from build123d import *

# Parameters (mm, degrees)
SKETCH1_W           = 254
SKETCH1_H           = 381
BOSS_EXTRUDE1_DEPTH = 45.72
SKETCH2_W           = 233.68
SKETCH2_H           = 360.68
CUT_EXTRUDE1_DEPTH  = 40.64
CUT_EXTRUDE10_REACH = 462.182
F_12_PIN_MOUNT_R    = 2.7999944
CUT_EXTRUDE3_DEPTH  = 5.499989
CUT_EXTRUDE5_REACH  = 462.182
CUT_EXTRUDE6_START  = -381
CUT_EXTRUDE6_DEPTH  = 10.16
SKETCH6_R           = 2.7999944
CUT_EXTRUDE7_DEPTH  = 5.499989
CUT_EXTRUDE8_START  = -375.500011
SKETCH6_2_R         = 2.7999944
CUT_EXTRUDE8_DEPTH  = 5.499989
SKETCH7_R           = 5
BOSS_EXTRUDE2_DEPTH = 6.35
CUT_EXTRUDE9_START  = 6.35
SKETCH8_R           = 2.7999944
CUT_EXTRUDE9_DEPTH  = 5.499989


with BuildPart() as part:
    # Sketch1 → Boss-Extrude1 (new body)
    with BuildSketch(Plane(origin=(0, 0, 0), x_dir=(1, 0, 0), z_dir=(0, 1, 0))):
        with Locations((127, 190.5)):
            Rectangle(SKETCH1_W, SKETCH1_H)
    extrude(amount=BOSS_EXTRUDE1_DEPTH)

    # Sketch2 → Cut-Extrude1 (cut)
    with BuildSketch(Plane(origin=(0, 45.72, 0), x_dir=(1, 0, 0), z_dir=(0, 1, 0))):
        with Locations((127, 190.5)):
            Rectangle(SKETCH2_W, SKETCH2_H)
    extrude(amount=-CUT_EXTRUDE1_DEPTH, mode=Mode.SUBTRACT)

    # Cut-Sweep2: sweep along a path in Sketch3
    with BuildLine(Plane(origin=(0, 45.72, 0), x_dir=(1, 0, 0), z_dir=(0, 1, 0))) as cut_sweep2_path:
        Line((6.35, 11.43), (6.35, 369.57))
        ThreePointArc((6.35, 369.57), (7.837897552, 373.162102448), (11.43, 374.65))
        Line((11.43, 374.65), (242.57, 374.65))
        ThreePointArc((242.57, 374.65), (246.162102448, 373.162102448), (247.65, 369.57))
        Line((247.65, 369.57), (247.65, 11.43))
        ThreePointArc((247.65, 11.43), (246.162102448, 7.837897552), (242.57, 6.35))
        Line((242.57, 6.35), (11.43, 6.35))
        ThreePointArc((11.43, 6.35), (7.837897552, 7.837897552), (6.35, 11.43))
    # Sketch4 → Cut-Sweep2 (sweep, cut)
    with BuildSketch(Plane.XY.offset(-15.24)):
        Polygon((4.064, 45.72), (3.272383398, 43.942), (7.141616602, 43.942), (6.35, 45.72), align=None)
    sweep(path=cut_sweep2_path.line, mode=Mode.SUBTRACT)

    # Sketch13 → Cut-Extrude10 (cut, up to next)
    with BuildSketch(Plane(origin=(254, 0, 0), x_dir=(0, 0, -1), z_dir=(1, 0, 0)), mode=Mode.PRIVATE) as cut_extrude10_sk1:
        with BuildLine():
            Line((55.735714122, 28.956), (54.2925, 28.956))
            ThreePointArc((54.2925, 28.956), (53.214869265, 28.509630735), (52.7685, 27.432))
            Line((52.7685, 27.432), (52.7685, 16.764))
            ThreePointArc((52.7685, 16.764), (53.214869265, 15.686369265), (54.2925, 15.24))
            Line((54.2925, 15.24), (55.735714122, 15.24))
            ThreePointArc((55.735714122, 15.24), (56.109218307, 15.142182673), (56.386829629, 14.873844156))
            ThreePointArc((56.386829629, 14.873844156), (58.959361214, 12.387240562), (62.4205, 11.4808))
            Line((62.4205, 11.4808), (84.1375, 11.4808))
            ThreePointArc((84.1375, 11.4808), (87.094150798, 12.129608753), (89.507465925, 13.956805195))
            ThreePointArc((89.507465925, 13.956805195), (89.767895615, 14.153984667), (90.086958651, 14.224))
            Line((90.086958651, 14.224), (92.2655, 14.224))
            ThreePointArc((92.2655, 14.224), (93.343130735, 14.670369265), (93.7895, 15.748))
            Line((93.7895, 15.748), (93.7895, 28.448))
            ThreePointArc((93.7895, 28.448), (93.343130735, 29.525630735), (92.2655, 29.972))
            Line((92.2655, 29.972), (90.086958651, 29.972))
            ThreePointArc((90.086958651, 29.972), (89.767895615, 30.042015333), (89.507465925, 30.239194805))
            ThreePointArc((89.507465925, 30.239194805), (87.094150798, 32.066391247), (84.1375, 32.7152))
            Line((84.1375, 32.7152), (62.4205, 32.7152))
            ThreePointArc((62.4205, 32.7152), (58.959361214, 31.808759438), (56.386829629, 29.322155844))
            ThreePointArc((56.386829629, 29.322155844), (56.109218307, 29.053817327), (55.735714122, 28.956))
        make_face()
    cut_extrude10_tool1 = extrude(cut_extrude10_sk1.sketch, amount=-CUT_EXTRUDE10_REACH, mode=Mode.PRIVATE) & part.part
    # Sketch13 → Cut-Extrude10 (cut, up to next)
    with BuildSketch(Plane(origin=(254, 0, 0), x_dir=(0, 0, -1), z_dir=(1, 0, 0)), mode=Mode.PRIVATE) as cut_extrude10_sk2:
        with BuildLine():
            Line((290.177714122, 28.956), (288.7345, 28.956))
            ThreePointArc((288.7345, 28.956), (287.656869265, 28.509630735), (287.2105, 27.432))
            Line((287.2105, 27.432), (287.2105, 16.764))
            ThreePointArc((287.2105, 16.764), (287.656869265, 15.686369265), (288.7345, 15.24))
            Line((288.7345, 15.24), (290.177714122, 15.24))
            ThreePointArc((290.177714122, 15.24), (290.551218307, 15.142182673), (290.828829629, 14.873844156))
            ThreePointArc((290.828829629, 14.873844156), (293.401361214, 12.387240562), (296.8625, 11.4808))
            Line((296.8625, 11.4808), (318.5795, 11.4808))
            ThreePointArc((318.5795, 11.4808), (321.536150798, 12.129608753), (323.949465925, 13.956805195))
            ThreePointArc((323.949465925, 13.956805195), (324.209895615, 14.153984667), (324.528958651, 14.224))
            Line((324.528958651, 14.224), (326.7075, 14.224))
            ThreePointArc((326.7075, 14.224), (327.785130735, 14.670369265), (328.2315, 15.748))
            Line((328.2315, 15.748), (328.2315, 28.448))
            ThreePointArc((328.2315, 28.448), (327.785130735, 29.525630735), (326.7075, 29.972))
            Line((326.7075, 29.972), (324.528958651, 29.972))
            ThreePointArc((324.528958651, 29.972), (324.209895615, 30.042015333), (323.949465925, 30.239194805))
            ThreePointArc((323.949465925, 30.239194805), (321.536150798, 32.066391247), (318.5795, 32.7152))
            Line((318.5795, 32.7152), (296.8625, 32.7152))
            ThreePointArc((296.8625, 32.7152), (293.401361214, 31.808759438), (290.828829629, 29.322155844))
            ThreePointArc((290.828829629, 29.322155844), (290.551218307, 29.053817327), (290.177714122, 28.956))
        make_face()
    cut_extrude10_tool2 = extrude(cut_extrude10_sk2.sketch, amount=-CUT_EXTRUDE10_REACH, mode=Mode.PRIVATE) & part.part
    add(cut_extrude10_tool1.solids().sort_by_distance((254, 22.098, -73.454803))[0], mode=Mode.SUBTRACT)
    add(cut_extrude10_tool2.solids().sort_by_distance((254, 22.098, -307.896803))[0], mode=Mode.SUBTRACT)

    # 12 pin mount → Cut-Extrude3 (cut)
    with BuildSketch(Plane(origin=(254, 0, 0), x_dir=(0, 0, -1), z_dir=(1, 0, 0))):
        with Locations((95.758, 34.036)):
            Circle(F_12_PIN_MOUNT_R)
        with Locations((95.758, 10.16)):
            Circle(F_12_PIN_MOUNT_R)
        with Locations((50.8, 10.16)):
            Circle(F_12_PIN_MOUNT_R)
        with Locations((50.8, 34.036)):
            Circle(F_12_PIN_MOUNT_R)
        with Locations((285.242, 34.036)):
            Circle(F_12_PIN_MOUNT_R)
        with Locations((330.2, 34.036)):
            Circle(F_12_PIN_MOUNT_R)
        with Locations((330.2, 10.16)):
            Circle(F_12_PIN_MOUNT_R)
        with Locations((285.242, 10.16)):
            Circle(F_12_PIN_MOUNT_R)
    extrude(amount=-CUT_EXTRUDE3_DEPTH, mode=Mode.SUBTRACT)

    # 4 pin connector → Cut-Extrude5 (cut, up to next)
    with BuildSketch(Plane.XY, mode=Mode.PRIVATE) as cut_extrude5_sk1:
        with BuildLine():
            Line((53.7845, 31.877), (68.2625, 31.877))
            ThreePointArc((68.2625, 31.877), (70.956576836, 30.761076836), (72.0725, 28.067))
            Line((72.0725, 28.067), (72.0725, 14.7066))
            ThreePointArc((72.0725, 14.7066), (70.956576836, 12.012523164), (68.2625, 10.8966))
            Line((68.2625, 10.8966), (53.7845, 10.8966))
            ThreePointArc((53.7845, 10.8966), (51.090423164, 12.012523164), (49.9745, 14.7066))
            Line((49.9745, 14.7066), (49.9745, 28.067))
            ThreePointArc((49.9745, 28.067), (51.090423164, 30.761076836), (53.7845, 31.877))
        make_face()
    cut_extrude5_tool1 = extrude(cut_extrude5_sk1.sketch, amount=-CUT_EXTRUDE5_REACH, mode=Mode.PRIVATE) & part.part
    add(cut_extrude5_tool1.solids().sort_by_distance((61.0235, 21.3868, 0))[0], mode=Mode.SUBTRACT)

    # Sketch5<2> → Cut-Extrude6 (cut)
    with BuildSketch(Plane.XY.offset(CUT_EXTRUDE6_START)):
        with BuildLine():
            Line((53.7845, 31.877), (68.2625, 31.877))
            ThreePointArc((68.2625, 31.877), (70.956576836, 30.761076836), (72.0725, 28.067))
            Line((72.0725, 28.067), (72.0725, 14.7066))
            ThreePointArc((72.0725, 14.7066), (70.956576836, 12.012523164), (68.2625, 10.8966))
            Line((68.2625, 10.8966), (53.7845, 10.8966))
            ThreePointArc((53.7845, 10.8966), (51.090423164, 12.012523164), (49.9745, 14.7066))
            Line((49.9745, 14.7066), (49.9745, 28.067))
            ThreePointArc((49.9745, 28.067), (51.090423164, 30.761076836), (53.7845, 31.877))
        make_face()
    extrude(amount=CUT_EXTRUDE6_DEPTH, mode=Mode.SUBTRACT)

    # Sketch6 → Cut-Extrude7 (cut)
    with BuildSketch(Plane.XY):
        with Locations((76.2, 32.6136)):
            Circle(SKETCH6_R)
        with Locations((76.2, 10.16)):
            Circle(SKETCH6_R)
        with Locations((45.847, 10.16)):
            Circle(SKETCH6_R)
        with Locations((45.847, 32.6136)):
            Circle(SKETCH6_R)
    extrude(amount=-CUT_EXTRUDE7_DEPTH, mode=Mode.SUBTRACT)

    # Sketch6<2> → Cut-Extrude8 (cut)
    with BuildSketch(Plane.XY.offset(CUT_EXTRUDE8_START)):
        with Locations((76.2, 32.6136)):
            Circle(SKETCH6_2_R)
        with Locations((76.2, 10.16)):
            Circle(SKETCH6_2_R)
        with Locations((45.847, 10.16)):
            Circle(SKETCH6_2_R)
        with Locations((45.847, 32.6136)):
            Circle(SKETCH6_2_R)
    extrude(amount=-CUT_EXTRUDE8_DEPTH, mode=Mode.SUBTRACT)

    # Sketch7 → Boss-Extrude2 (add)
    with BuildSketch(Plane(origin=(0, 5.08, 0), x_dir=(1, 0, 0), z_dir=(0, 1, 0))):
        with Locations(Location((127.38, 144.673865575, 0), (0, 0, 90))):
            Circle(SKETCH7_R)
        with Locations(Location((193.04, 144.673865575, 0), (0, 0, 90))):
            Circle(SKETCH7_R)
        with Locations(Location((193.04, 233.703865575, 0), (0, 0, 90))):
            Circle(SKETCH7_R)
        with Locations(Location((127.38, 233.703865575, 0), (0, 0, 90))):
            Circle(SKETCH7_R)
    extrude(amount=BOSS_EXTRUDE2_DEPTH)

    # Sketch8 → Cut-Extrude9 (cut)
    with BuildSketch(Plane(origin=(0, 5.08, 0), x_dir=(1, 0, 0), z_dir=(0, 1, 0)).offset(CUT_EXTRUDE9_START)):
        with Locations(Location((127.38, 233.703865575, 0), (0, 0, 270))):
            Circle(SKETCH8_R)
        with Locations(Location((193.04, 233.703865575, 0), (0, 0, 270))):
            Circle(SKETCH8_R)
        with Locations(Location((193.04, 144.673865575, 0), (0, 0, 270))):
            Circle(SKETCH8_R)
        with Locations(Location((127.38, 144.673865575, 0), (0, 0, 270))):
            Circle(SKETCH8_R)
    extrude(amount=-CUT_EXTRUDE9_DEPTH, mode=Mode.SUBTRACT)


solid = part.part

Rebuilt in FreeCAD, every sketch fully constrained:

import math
import FreeCAD as App
import Part
import Sketcher

V = App.Vector
Q = App.Units.Quantity

doc = App.newDocument("Part")
body = doc.addObject("PartDesign::Body", "Body")

# Sketch on XZ plane
sketch1 = body.newObject("Sketcher::SketchObject", "Sketch")
sketch1.AttachmentSupport = (doc.getObject("XZ_Plane"), [""])
sketch1.MapMode = "FlatFace"
sketch1.addGeometry(Part.LineSegment(V(0, -381, 0), V(0, 0, 0)), False)
sketch1.addGeometry(Part.LineSegment(V(0, 0, 0), V(254, 0, 0)), False)
sketch1.addGeometry(Part.LineSegment(V(254, 0, 0), V(254, -381, 0)), False)
sketch1.addGeometry(Part.LineSegment(V(254, -381, 0), V(0, -381, 0)), False)
sketch1.addConstraint(Sketcher.Constraint("Coincident", 0, 2, 1, 1))
sketch1.addConstraint(Sketcher.Constraint("Coincident", 1, 2, 2, 1))
sketch1.addConstraint(Sketcher.Constraint("Coincident", 2, 2, 3, 1))
sketch1.addConstraint(Sketcher.Constraint("Coincident", 3, 2, 0, 1))
sketch1.addConstraint(Sketcher.Constraint("Vertical", 0))
sketch1.addConstraint(Sketcher.Constraint("Horizontal", 1))
sketch1.addConstraint(Sketcher.Constraint("Vertical", 2))
sketch1.addConstraint(Sketcher.Constraint("Horizontal", 3))
sketch1.addConstraint(Sketcher.Constraint("Coincident", 0, 2, -1, 1))
sketch1.addConstraint(Sketcher.Constraint("DistanceX", 1, 1, 1, 2, Q("10 in")))
sketch1.addConstraint(Sketcher.Constraint("DistanceY", 0, 1, 0, 2, Q("15 in")))
pad1 = body.newObject("PartDesign::Pad", "Pad")
pad1.Profile = sketch1
pad1.Length = Q("1.8 in")
pad1.Reversed = True

# Sketch on XZ plane
sketch2 = body.newObject("Sketcher::SketchObject", "Sketch001")
sketch2.AttachmentSupport = (doc.getObject("XZ_Plane"), [""])
sketch2.MapMode = "FlatFace"
sketch2.AttachmentOffset = App.Placement(V(0, 0, -1.8 * 25.4), App.Rotation())
sketch2.addGeometry(Part.LineSegment(V(10, -371, 0), V(10, -10, 0)), False)
sketch2.addGeometry(Part.LineSegment(V(10, -10, 0), V(244, -10, 0)), False)
sketch2.addGeometry(Part.LineSegment(V(244, -10, 0), V(244, -371, 0)), False)
sketch2.addGeometry(Part.LineSegment(V(244, -371, 0), V(10, -371, 0)), False)
sketch2.addConstraint(Sketcher.Constraint("Coincident", 0, 2, 1, 1))
sketch2.addConstraint(Sketcher.Constraint("Coincident", 1, 2, 2, 1))
sketch2.addConstraint(Sketcher.Constraint("Coincident", 2, 2, 3, 1))
sketch2.addConstraint(Sketcher.Constraint("Coincident", 3, 2, 0, 1))
sketch2.addConstraint(Sketcher.Constraint("Vertical", 0))
sketch2.addConstraint(Sketcher.Constraint("Horizontal", 1))
sketch2.addConstraint(Sketcher.Constraint("Vertical", 2))
sketch2.addConstraint(Sketcher.Constraint("Horizontal", 3))
sketch2.addConstraint(Sketcher.Constraint("DistanceX", 1, 1, 1, 2, Q("9.2 in")))
sketch2.addConstraint(Sketcher.Constraint("DistanceY", 0, 1, 0, 2, Q("14.2 in")))
sketch2.addConstraint(Sketcher.Constraint("DistanceX", -1, 1, 0, 2, Q("0.4 in")))
sketch2.addConstraint(Sketcher.Constraint("DistanceY", 0, 2, -1, 1, Q("0.4 in")))
pocket1 = body.newObject("PartDesign::Pocket", "Pocket")
pocket1.Profile = sketch2
pocket1.Length = Q("1.6 in")
pocket1.Reversed = True

# Sketch on XY plane
sketch3 = body.newObject("Sketcher::SketchObject", "Sketch002")
sketch3.AttachmentSupport = (doc.getObject("XY_Plane"), [""])
sketch3.MapMode = "FlatFace"
sketch3.AttachmentOffset = App.Placement(V(0, 0, -0.6 * 25.4), App.Rotation())
sketch3.addGeometry(Part.LineSegment(V(4.1, 45.7, 0), V(3.3, 43.9, 0)), False)
sketch3.addGeometry(Part.LineSegment(V(3.3, 43.9, 0), V(7.1, 43.9, 0)), False)
sketch3.addGeometry(Part.LineSegment(V(7.1, 43.9, 0), V(6.3, 45.7, 0)), False)
sketch3.addGeometry(Part.LineSegment(V(6.3, 45.7, 0), V(4.1, 45.7, 0)), False)
sketch3.addConstraint(Sketcher.Constraint("Coincident", 0, 2, 1, 1))
sketch3.addConstraint(Sketcher.Constraint("Coincident", 1, 2, 2, 1))
sketch3.addConstraint(Sketcher.Constraint("Coincident", 2, 2, 3, 1))
sketch3.addConstraint(Sketcher.Constraint("Coincident", 3, 2, 0, 1))
sketch3.addConstraint(Sketcher.Constraint("Horizontal", 1))
sketch3.addConstraint(Sketcher.Constraint("Horizontal", 3))
sketch3.addConstraint(Sketcher.Constraint("Equal", 0, 2))
sketch3.addConstraint(Sketcher.Constraint("Angle", 0, Q("-114 deg")))
sketch3.addConstraint(Sketcher.Constraint("DistanceX", 3, 2, 3, 1, Q("0.09 in")))
sketch3.addConstraint(Sketcher.Constraint("DistanceY", -1, 1, 2, 2, Q("1.8 in")))
sketch3.addConstraint(Sketcher.Constraint("DistanceY", -1, 1, 0, 2, Q("1.73 in")))
sketch3.addConstraint(Sketcher.Constraint("DistanceX", -1, 1, 2, 2, Q("0.25 in")))

# Sketch on XZ plane
sketch4 = body.newObject("Sketcher::SketchObject", "Sketch003")
sketch4.AttachmentSupport = (doc.getObject("XZ_Plane"), [""])
sketch4.MapMode = "FlatFace"
sketch4.AttachmentOffset = App.Placement(V(0, 0, -1.8 * 25.4), App.Rotation())
sketch4.addGeometry(Part.LineSegment(V(6, -11, 0), V(6, -370, 0)), False)
sketch4.addGeometry(Part.ArcOfCircle(Part.Circle(V(11, -370, 0), V(0, 0, 1), 5), math.radians(-180), math.radians(-90)), False)
sketch4.addGeometry(Part.LineSegment(V(11, -375, 0), V(243, -375, 0)), False)
sketch4.addGeometry(Part.ArcOfCircle(Part.Circle(V(243, -370, 0), V(0, 0, 1), 5), math.radians(-90), math.radians(0)), False)
sketch4.addGeometry(Part.LineSegment(V(248, -370, 0), V(248, -11, 0)), False)
sketch4.addGeometry(Part.ArcOfCircle(Part.Circle(V(243, -11, 0), V(0, 0, 1), 5), math.radians(0), math.radians(90)), False)
sketch4.addGeometry(Part.LineSegment(V(243, -6, 0), V(11, -6, 0)), False)
sketch4.addGeometry(Part.ArcOfCircle(Part.Circle(V(11, -11, 0), V(0, 0, 1), 5), math.radians(90), math.radians(180)), False)
sketch4.addConstraint(Sketcher.Constraint("Tangent", 0, 2, 1, 1))
sketch4.addConstraint(Sketcher.Constraint("Tangent", 1, 2, 2, 1))
sketch4.addConstraint(Sketcher.Constraint("Tangent", 2, 2, 3, 1))
sketch4.addConstraint(Sketcher.Constraint("Tangent", 3, 2, 4, 1))
sketch4.addConstraint(Sketcher.Constraint("Tangent", 4, 2, 5, 1))
sketch4.addConstraint(Sketcher.Constraint("Tangent", 5, 2, 6, 1))
sketch4.addConstraint(Sketcher.Constraint("Tangent", 6, 2, 7, 1))
sketch4.addConstraint(Sketcher.Constraint("Tangent", 7, 2, 0, 1))
sketch4.addConstraint(Sketcher.Constraint("Vertical", 0))
sketch4.addConstraint(Sketcher.Constraint("Horizontal", 2))
sketch4.addConstraint(Sketcher.Constraint("Vertical", 4))
sketch4.addConstraint(Sketcher.Constraint("Horizontal", 6))
sketch4.addConstraint(Sketcher.Constraint("Equal", 1, 3))
sketch4.addConstraint(Sketcher.Constraint("Equal", 3, 5))
sketch4.addConstraint(Sketcher.Constraint("Equal", 5, 7))
sketch4.addConstraint(Sketcher.Constraint("Radius", 1, Q("0.2 in")))
sketch4.addConstraint(Sketcher.Constraint("DistanceX", 2, 1, 2, 2, Q("9.1 in")))
sketch4.addConstraint(Sketcher.Constraint("DistanceY", 0, 2, 0, 1, Q("14.1 in")))
sketch4.addConstraint(Sketcher.Constraint("DistanceX", -1, 1, 1, 3, Q("0.45 in")))
sketch4.addConstraint(Sketcher.Constraint("DistanceY", 1, 3, -1, 1, Q("14.55 in")))
doc.recompute()

subtractivepipe = body.newObject("PartDesign::SubtractivePipe", "SubtractivePipe")
subtractivepipe.Profile = sketch3
subtractivepipe.Spine = (sketch4, ["Edge1", "Edge2", "Edge3", "Edge4", "Edge5", "Edge6", "Edge7", "Edge8"])

# Sketch on YZ plane
sketch5 = body.newObject("Sketcher::SketchObject", "Sketch004")
sketch5.AttachmentSupport = (doc.getObject("YZ_Plane"), [""])
sketch5.MapMode = "FlatFace"
sketch5.AttachmentOffset = App.Placement(V(0, 0, 10 * 25.4), App.Rotation())
sketch5.addGeometry(Part.LineSegment(V(29, -55.7, 0), V(29, -54.3, 0)), False)
sketch5.addGeometry(Part.ArcOfCircle(Part.Circle(V(27.4, -54.3, 0), V(0, 0, 1), 1.5), math.radians(0), math.radians(90)), False)
sketch5.addGeometry(Part.LineSegment(V(27.4, -52.8, 0), V(16.8, -52.8, 0)), False)
sketch5.addGeometry(Part.ArcOfCircle(Part.Circle(V(16.8, -54.3, 0), V(0, 0, 1), 1.5), math.radians(90), math.radians(180)), False)
sketch5.addGeometry(Part.LineSegment(V(15.2, -54.3, 0), V(15.2, -55.7, 0)), False)
sketch5.addGeometry(Part.ArcOfCircle(Part.Circle(V(14.5, -55.7, 0), V(0, 0, 1), 0.8), math.radians(-59), math.radians(0)), False)
sketch5.addGeometry(Part.ArcOfCircle(Part.Circle(V(18.5, -62.4, 0), V(0, 0, 1), 7.1), math.radians(121), math.radians(180)), False)
sketch5.addGeometry(Part.LineSegment(V(11.5, -62.4, 0), V(11.5, -84.1, 0)), False)
sketch5.addGeometry(Part.ArcOfCircle(Part.Circle(V(18.5, -84.1, 0), V(0, 0, 1), 7.1), math.radians(180), math.radians(230)), False)
sketch5.addGeometry(Part.ArcOfCircle(Part.Circle(V(13.5, -90.1, 0), V(0, 0, 1), 0.8), math.radians(0), math.radians(50)), False)
sketch5.addGeometry(Part.LineSegment(V(14.2, -90.1, 0), V(14.2, -92.3, 0)), False)
sketch5.addGeometry(Part.ArcOfCircle(Part.Circle(V(15.7, -92.3, 0), V(0, 0, 1), 1.5), math.radians(180), math.radians(270)), False)
sketch5.addGeometry(Part.LineSegment(V(15.7, -93.8, 0), V(28.4, -93.8, 0)), False)
sketch5.addGeometry(Part.ArcOfCircle(Part.Circle(V(28.4, -92.3, 0), V(0, 0, 1), 1.5), math.radians(-90), math.radians(0)), False)
sketch5.addGeometry(Part.LineSegment(V(30, -92.3, 0), V(30, -90.1, 0)), False)
sketch5.addGeometry(Part.ArcOfCircle(Part.Circle(V(30.7, -90.1, 0), V(0, 0, 1), 0.8), math.radians(130), math.radians(180)), False)
sketch5.addGeometry(Part.ArcOfCircle(Part.Circle(V(25.7, -84.1, 0), V(0, 0, 1), 7.1), math.radians(-50), math.radians(0)), False)
sketch5.addGeometry(Part.LineSegment(V(32.7, -84.1, 0), V(32.7, -62.4, 0)), False)
sketch5.addGeometry(Part.ArcOfCircle(Part.Circle(V(25.7, -62.4, 0), V(0, 0, 1), 7.1), math.radians(0), math.radians(59)), False)
sketch5.addGeometry(Part.ArcOfCircle(Part.Circle(V(29.7, -55.7, 0), V(0, 0, 1), 0.8), math.radians(-180), math.radians(-121)), False)
sketch5.addConstraint(Sketcher.Constraint("Tangent", 0, 2, 1, 1))
sketch5.addConstraint(Sketcher.Constraint("Tangent", 1, 2, 2, 1))
sketch5.addConstraint(Sketcher.Constraint("Tangent", 2, 2, 3, 1))
sketch5.addConstraint(Sketcher.Constraint("Tangent", 3, 2, 4, 1))
sketch5.addConstraint(Sketcher.Constraint("Tangent", 4, 2, 5, 2))
sketch5.addConstraint(Sketcher.Constraint("Tangent", 5, 1, 6, 1))
sketch5.addConstraint(Sketcher.Constraint("Tangent", 6, 2, 7, 1))
sketch5.addConstraint(Sketcher.Constraint("Tangent", 7, 2, 8, 1))
sketch5.addConstraint(Sketcher.Constraint("Tangent", 8, 2, 9, 2))
sketch5.addConstraint(Sketcher.Constraint("Tangent", 9, 1, 10, 1))
sketch5.addConstraint(Sketcher.Constraint("Tangent", 10, 2, 11, 1))
sketch5.addConstraint(Sketcher.Constraint("Tangent", 11, 2, 12, 1))
sketch5.addConstraint(Sketcher.Constraint("Tangent", 12, 2, 13, 1))
sketch5.addConstraint(Sketcher.Constraint("Tangent", 13, 2, 14, 1))
sketch5.addConstraint(Sketcher.Constraint("Tangent", 14, 2, 15, 2))
sketch5.addConstraint(Sketcher.Constraint("Tangent", 15, 1, 16, 1))
sketch5.addConstraint(Sketcher.Constraint("Tangent", 16, 2, 17, 1))
sketch5.addConstraint(Sketcher.Constraint("Tangent", 17, 2, 18, 1))
sketch5.addConstraint(Sketcher.Constraint("Tangent", 18, 2, 19, 2))
sketch5.addConstraint(Sketcher.Constraint("Tangent", 19, 1, 0, 1))
sketch5.addConstraint(Sketcher.Constraint("Vertical", 0))
sketch5.addConstraint(Sketcher.Constraint("Horizontal", 2))
sketch5.addConstraint(Sketcher.Constraint("Vertical", 4))
sketch5.addConstraint(Sketcher.Constraint("Vertical", 7))
sketch5.addConstraint(Sketcher.Constraint("Vertical", 10))
sketch5.addConstraint(Sketcher.Constraint("Horizontal", 12))
sketch5.addConstraint(Sketcher.Constraint("Vertical", 14))
sketch5.addConstraint(Sketcher.Constraint("Vertical", 17))
sketch5.addConstraint(Sketcher.Constraint("Equal", 1, 3))
sketch5.addConstraint(Sketcher.Constraint("Equal", 6, 8))
sketch5.addConstraint(Sketcher.Constraint("Equal", 5, 9))
sketch5.addConstraint(Sketcher.Constraint("Equal", 3, 11))
sketch5.addConstraint(Sketcher.Constraint("Equal", 11, 13))
sketch5.addConstraint(Sketcher.Constraint("Equal", 9, 15))
sketch5.addConstraint(Sketcher.Constraint("Equal", 8, 16))
sketch5.addConstraint(Sketcher.Constraint("Equal", 16, 18))
sketch5.addConstraint(Sketcher.Constraint("Equal", 15, 19))
sketch5.addConstraint(Sketcher.Constraint("Horizontal", 9, 3, 15, 3))
sketch5.addConstraint(Sketcher.Constraint("Horizontal", 8, 3, 16, 3))
sketch5.addConstraint(Sketcher.Constraint("Horizontal", 6, 3, 18, 3))
sketch5.addConstraint(Sketcher.Constraint("Horizontal", 5, 3, 19, 3))
sketch5.addConstraint(Sketcher.Constraint("Radius", 1, Q("0.06 in")))
sketch5.addConstraint(Sketcher.Constraint("Radius", 5, Q("0.03 in")))
sketch5.addConstraint(Sketcher.Constraint("DistanceX", 12, 1, 12, 2, Q("0.5 in")))
sketch5.addConstraint(Sketcher.Constraint("Radius", 6, Q("0.278 in")))
sketch5.addConstraint(Sketcher.Constraint("DistanceX", 2, 2, 2, 1, Q("0.42 in")))
sketch5.addConstraint(Sketcher.Constraint("DistanceX", -1, 1, 3, 2, Q("0.6 in")))
sketch5.addConstraint(Sketcher.Constraint("DistanceX", 9, 3, 8, 3, Q("0.2 in")))
sketch5.addConstraint(Sketcher.Constraint("DistanceY", 7, 2, 7, 1, Q("0.855 in")))
sketch5.addConstraint(Sketcher.Constraint("DistanceY", 6, 3, 3, 3, Q("0.32 in")))
sketch5.addConstraint(Sketcher.Constraint("DistanceY", 11, 3, 8, 3, Q("0.32 in")))
sketch5.addConstraint(Sketcher.Constraint("DistanceY", 8, 3, -1, 1, Q("3.3125 in")))
pocket2 = body.newObject("PartDesign::Pocket", "Pocket001")
pocket2.Profile = sketch5
pocket2.Type = "UpToFirst"

# Sketch on YZ plane
sketch6 = body.newObject("Sketcher::SketchObject", "Sketch005")
sketch6.AttachmentSupport = (doc.getObject("YZ_Plane"), [""])
sketch6.MapMode = "FlatFace"
sketch6.AttachmentOffset = App.Placement(V(0, 0, 10 * 25.4), App.Rotation())
sketch6.addGeometry(Part.LineSegment(V(29, -290.2, 0), V(29, -288.7, 0)), False)
sketch6.addGeometry(Part.ArcOfCircle(Part.Circle(V(27.4, -288.7, 0), V(0, 0, 1), 1.5), math.radians(0), math.radians(90)), False)
sketch6.addGeometry(Part.LineSegment(V(27.4, -287.2, 0), V(16.8, -287.2, 0)), False)
sketch6.addGeometry(Part.ArcOfCircle(Part.Circle(V(16.8, -288.7, 0), V(0, 0, 1), 1.5), math.radians(90), math.radians(180)), False)
sketch6.addGeometry(Part.LineSegment(V(15.2, -288.7, 0), V(15.2, -290.2, 0)), False)
sketch6.addGeometry(Part.ArcOfCircle(Part.Circle(V(14.5, -290.2, 0), V(0, 0, 1), 0.8), math.radians(-59), math.radians(0)), False)
sketch6.addGeometry(Part.ArcOfCircle(Part.Circle(V(18.5, -296.9, 0), V(0, 0, 1), 7.1), math.radians(121), math.radians(180)), False)
sketch6.addGeometry(Part.LineSegment(V(11.5, -296.9, 0), V(11.5, -318.6, 0)), False)
sketch6.addGeometry(Part.ArcOfCircle(Part.Circle(V(18.5, -318.6, 0), V(0, 0, 1), 7.1), math.radians(180), math.radians(230)), False)
sketch6.addGeometry(Part.ArcOfCircle(Part.Circle(V(13.5, -324.5, 0), V(0, 0, 1), 0.8), math.radians(0), math.radians(50)), False)
sketch6.addGeometry(Part.LineSegment(V(14.2, -324.5, 0), V(14.2, -326.7, 0)), False)
sketch6.addGeometry(Part.ArcOfCircle(Part.Circle(V(15.7, -326.7, 0), V(0, 0, 1), 1.5), math.radians(180), math.radians(270)), False)
sketch6.addGeometry(Part.LineSegment(V(15.7, -328.2, 0), V(28.4, -328.2, 0)), False)
sketch6.addGeometry(Part.ArcOfCircle(Part.Circle(V(28.4, -326.7, 0), V(0, 0, 1), 1.5), math.radians(-90), math.radians(0)), False)
sketch6.addGeometry(Part.LineSegment(V(30, -326.7, 0), V(30, -324.5, 0)), False)
sketch6.addGeometry(Part.ArcOfCircle(Part.Circle(V(30.7, -324.5, 0), V(0, 0, 1), 0.8), math.radians(130), math.radians(180)), False)
sketch6.addGeometry(Part.ArcOfCircle(Part.Circle(V(25.7, -318.6, 0), V(0, 0, 1), 7.1), math.radians(-50), math.radians(0)), False)
sketch6.addGeometry(Part.LineSegment(V(32.7, -318.6, 0), V(32.7, -296.9, 0)), False)
sketch6.addGeometry(Part.ArcOfCircle(Part.Circle(V(25.7, -296.9, 0), V(0, 0, 1), 7.1), math.radians(0), math.radians(59)), False)
sketch6.addGeometry(Part.ArcOfCircle(Part.Circle(V(29.7, -290.2, 0), V(0, 0, 1), 0.8), math.radians(-180), math.radians(-121)), False)
sketch6.addConstraint(Sketcher.Constraint("Tangent", 0, 2, 1, 1))
sketch6.addConstraint(Sketcher.Constraint("Tangent", 1, 2, 2, 1))
sketch6.addConstraint(Sketcher.Constraint("Tangent", 2, 2, 3, 1))
sketch6.addConstraint(Sketcher.Constraint("Tangent", 3, 2, 4, 1))
sketch6.addConstraint(Sketcher.Constraint("Tangent", 4, 2, 5, 2))
sketch6.addConstraint(Sketcher.Constraint("Tangent", 5, 1, 6, 1))
sketch6.addConstraint(Sketcher.Constraint("Tangent", 6, 2, 7, 1))
sketch6.addConstraint(Sketcher.Constraint("Tangent", 7, 2, 8, 1))
sketch6.addConstraint(Sketcher.Constraint("Tangent", 8, 2, 9, 2))
sketch6.addConstraint(Sketcher.Constraint("Tangent", 9, 1, 10, 1))
sketch6.addConstraint(Sketcher.Constraint("Tangent", 10, 2, 11, 1))
sketch6.addConstraint(Sketcher.Constraint("Tangent", 11, 2, 12, 1))
sketch6.addConstraint(Sketcher.Constraint("Tangent", 12, 2, 13, 1))
sketch6.addConstraint(Sketcher.Constraint("Tangent", 13, 2, 14, 1))
sketch6.addConstraint(Sketcher.Constraint("Tangent", 14, 2, 15, 2))
sketch6.addConstraint(Sketcher.Constraint("Tangent", 15, 1, 16, 1))
sketch6.addConstraint(Sketcher.Constraint("Tangent", 16, 2, 17, 1))
sketch6.addConstraint(Sketcher.Constraint("Tangent", 17, 2, 18, 1))
sketch6.addConstraint(Sketcher.Constraint("Tangent", 18, 2, 19, 2))
sketch6.addConstraint(Sketcher.Constraint("Tangent", 19, 1, 0, 1))
sketch6.addConstraint(Sketcher.Constraint("Vertical", 0))
sketch6.addConstraint(Sketcher.Constraint("Horizontal", 2))
sketch6.addConstraint(Sketcher.Constraint("Vertical", 4))
sketch6.addConstraint(Sketcher.Constraint("Vertical", 7))
sketch6.addConstraint(Sketcher.Constraint("Vertical", 10))
sketch6.addConstraint(Sketcher.Constraint("Horizontal", 12))
sketch6.addConstraint(Sketcher.Constraint("Vertical", 14))
sketch6.addConstraint(Sketcher.Constraint("Vertical", 17))
sketch6.addConstraint(Sketcher.Constraint("Equal", 1, 3))
sketch6.addConstraint(Sketcher.Constraint("Equal", 6, 8))
sketch6.addConstraint(Sketcher.Constraint("Equal", 5, 9))
sketch6.addConstraint(Sketcher.Constraint("Equal", 3, 11))
sketch6.addConstraint(Sketcher.Constraint("Equal", 11, 13))
sketch6.addConstraint(Sketcher.Constraint("Equal", 9, 15))
sketch6.addConstraint(Sketcher.Constraint("Equal", 8, 16))
sketch6.addConstraint(Sketcher.Constraint("Equal", 16, 18))
sketch6.addConstraint(Sketcher.Constraint("Equal", 15, 19))
sketch6.addConstraint(Sketcher.Constraint("Horizontal", 9, 3, 15, 3))
sketch6.addConstraint(Sketcher.Constraint("Horizontal", 8, 3, 16, 3))
sketch6.addConstraint(Sketcher.Constraint("Horizontal", 6, 3, 18, 3))
sketch6.addConstraint(Sketcher.Constraint("Horizontal", 5, 3, 19, 3))
sketch6.addConstraint(Sketcher.Constraint("Radius", 1, Q("0.06 in")))
sketch6.addConstraint(Sketcher.Constraint("Radius", 5, Q("0.03 in")))
sketch6.addConstraint(Sketcher.Constraint("DistanceX", 12, 1, 12, 2, Q("0.5 in")))
sketch6.addConstraint(Sketcher.Constraint("Radius", 6, Q("0.278 in")))
sketch6.addConstraint(Sketcher.Constraint("DistanceX", 2, 2, 2, 1, Q("0.42 in")))
sketch6.addConstraint(Sketcher.Constraint("DistanceX", -1, 1, 3, 2, Q("0.6 in")))
sketch6.addConstraint(Sketcher.Constraint("DistanceX", 9, 3, 8, 3, Q("0.2 in")))
sketch6.addConstraint(Sketcher.Constraint("DistanceY", 7, 2, 7, 1, Q("0.855 in")))
sketch6.addConstraint(Sketcher.Constraint("DistanceY", 6, 3, 3, 3, Q("0.32 in")))
sketch6.addConstraint(Sketcher.Constraint("DistanceY", 11, 3, 8, 3, Q("0.32 in")))
sketch6.addConstraint(Sketcher.Constraint("DistanceY", 6, 3, -1, 1, Q("11.6875 in")))
pocket3 = body.newObject("PartDesign::Pocket", "Pocket002")
pocket3.Profile = sketch6
pocket3.Type = "UpToFirst"

# Sketch on YZ plane
sketch7 = body.newObject("Sketcher::SketchObject", "Sketch006")
sketch7.AttachmentSupport = (doc.getObject("YZ_Plane"), [""])
sketch7.MapMode = "FlatFace"
sketch7.AttachmentOffset = App.Placement(V(0, 0, 10 * 25.4), App.Rotation())
sketch7.addGeometry(Part.Circle(V(34, -95.8, 0), V(0, 0, 1), 2.8), False)
sketch7.addGeometry(Part.Circle(V(10.2, -95.8, 0), V(0, 0, 1), 2.8), False)
sketch7.addGeometry(Part.Circle(V(10.2, -50.8, 0), V(0, 0, 1), 2.8), False)
sketch7.addGeometry(Part.Circle(V(34, -50.8, 0), V(0, 0, 1), 2.8), False)
sketch7.addGeometry(Part.Circle(V(34, -285.2, 0), V(0, 0, 1), 2.8), False)
sketch7.addGeometry(Part.Circle(V(34, -330.2, 0), V(0, 0, 1), 2.8), False)
sketch7.addGeometry(Part.Circle(V(10.2, -330.2, 0), V(0, 0, 1), 2.8), False)
sketch7.addGeometry(Part.Circle(V(10.2, -285.2, 0), V(0, 0, 1), 2.8), False)
sketch7.addConstraint(Sketcher.Constraint("Equal", 0, 1))
sketch7.addConstraint(Sketcher.Constraint("Equal", 1, 2))
sketch7.addConstraint(Sketcher.Constraint("Equal", 2, 3))
sketch7.addConstraint(Sketcher.Constraint("Equal", 3, 4))
sketch7.addConstraint(Sketcher.Constraint("Equal", 4, 5))
sketch7.addConstraint(Sketcher.Constraint("Equal", 5, 6))
sketch7.addConstraint(Sketcher.Constraint("Equal", 6, 7))
sketch7.addConstraint(Sketcher.Constraint("Horizontal", 0, 3, 1, 3))
sketch7.addConstraint(Sketcher.Constraint("Horizontal", 2, 3, 3, 3))
sketch7.addConstraint(Sketcher.Constraint("Horizontal", 5, 3, 6, 3))
sketch7.addConstraint(Sketcher.Constraint("Horizontal", 4, 3, 7, 3))
sketch7.addConstraint(Sketcher.Constraint("Vertical", 1, 3, 2, 3))
sketch7.addConstraint(Sketcher.Constraint("Vertical", 0, 3, 3, 3))
sketch7.addConstraint(Sketcher.Constraint("Vertical", 3, 3, 4, 3))
sketch7.addConstraint(Sketcher.Constraint("Vertical", 4, 3, 5, 3))
sketch7.addConstraint(Sketcher.Constraint("Vertical", 2, 3, 6, 3))
sketch7.addConstraint(Sketcher.Constraint("Vertical", 6, 3, 7, 3))
sketch7.addConstraint(Sketcher.Constraint("DistanceY", 2, 3, -1, 1, Q("2 in")))
sketch7.addConstraint(Sketcher.Constraint("DistanceY", 5, 3, -1, 1, Q("13 in")))
sketch7.addConstraint(Sketcher.Constraint("DistanceX", -1, 1, 1, 3, Q("0.4 in")))
sketch7.addConstraint(Sketcher.Constraint("DistanceX", -1, 1, 0, 3, Q("1.34 in")))
sketch7.addConstraint(Sketcher.Constraint("DistanceY", 0, 3, -1, 1, Q("3.77 in")))
sketch7.addConstraint(Sketcher.Constraint("DistanceY", 4, 3, -1, 1, Q("11.23 in")))
sketch7.addConstraint(Sketcher.Constraint("Diameter", 0, Q("5.599989 mm")))
pocket4 = body.newObject("PartDesign::Pocket", "Pocket003")
pocket4.Profile = sketch7
pocket4.Length = 5.499989

# Sketch on XY plane
sketch8 = body.newObject("Sketcher::SketchObject", "Sketch007")
sketch8.AttachmentSupport = (doc.getObject("XY_Plane"), [""])
sketch8.MapMode = "FlatFace"
sketch8.addGeometry(Part.LineSegment(V(68.3, 31.9, 0), V(53.8, 31.9, 0)), False)
sketch8.addGeometry(Part.ArcOfCircle(Part.Circle(V(53.8, 28.1, 0), V(0, 0, 1), 3.8), math.radians(90), math.radians(180)), False)
sketch8.addGeometry(Part.LineSegment(V(50, 28.1, 0), V(50, 14.7, 0)), False)
sketch8.addGeometry(Part.ArcOfCircle(Part.Circle(V(53.8, 14.7, 0), V(0, 0, 1), 3.8), math.radians(-180), math.radians(-90)), False)
sketch8.addGeometry(Part.LineSegment(V(53.8, 10.9, 0), V(68.3, 10.9, 0)), False)
sketch8.addGeometry(Part.ArcOfCircle(Part.Circle(V(68.3, 14.7, 0), V(0, 0, 1), 3.8), math.radians(-90), math.radians(0)), False)
sketch8.addGeometry(Part.LineSegment(V(72.1, 14.7, 0), V(72.1, 28.1, 0)), False)
sketch8.addGeometry(Part.ArcOfCircle(Part.Circle(V(68.3, 28.1, 0), V(0, 0, 1), 3.8), math.radians(0), math.radians(90)), False)
sketch8.addConstraint(Sketcher.Constraint("Tangent", 0, 2, 1, 1))
sketch8.addConstraint(Sketcher.Constraint("Tangent", 1, 2, 2, 1))
sketch8.addConstraint(Sketcher.Constraint("Tangent", 2, 2, 3, 1))
sketch8.addConstraint(Sketcher.Constraint("Tangent", 3, 2, 4, 1))
sketch8.addConstraint(Sketcher.Constraint("Tangent", 4, 2, 5, 1))
sketch8.addConstraint(Sketcher.Constraint("Tangent", 5, 2, 6, 1))
sketch8.addConstraint(Sketcher.Constraint("Tangent", 6, 2, 7, 1))
sketch8.addConstraint(Sketcher.Constraint("Tangent", 7, 2, 0, 1))
sketch8.addConstraint(Sketcher.Constraint("Horizontal", 0))
sketch8.addConstraint(Sketcher.Constraint("Vertical", 2))
sketch8.addConstraint(Sketcher.Constraint("Horizontal", 4))
sketch8.addConstraint(Sketcher.Constraint("Vertical", 6))
sketch8.addConstraint(Sketcher.Constraint("Equal", 1, 3))
sketch8.addConstraint(Sketcher.Constraint("Equal", 3, 5))
sketch8.addConstraint(Sketcher.Constraint("Equal", 5, 7))
sketch8.addConstraint(Sketcher.Constraint("Radius", 1, Q("0.15 in")))
sketch8.addConstraint(Sketcher.Constraint("DistanceX", 0, 2, 0, 1, Q("0.57 in")))
sketch8.addConstraint(Sketcher.Constraint("DistanceY", 2, 2, 2, 1, Q("0.526 in")))
sketch8.addConstraint(Sketcher.Constraint("DistanceY", -1, 1, 1, 3, Q("1.105 in")))
sketch8.addConstraint(Sketcher.Constraint("DistanceX", -1, 1, 5, 3, Q("2.6875 in")))
pocket5 = body.newObject("PartDesign::Pocket", "Pocket004")
pocket5.Profile = sketch8
pocket5.Type = "UpToFirst"

# Sketch on XY plane
sketch9 = body.newObject("Sketcher::SketchObject", "Sketch008")
sketch9.AttachmentSupport = (doc.getObject("XY_Plane"), [""])
sketch9.MapMode = "FlatFace"
sketch9.AttachmentOffset = App.Placement(V(0, 0, -15 * 25.4), App.Rotation())
sketch9.addGeometry(Part.LineSegment(V(68.3, 31.9, 0), V(53.8, 31.9, 0)), False)
sketch9.addGeometry(Part.ArcOfCircle(Part.Circle(V(53.8, 28.1, 0), V(0, 0, 1), 3.8), math.radians(90), math.radians(180)), False)
sketch9.addGeometry(Part.LineSegment(V(50, 28.1, 0), V(50, 14.7, 0)), False)
sketch9.addGeometry(Part.ArcOfCircle(Part.Circle(V(53.8, 14.7, 0), V(0, 0, 1), 3.8), math.radians(-180), math.radians(-90)), False)
sketch9.addGeometry(Part.LineSegment(V(53.8, 10.9, 0), V(68.3, 10.9, 0)), False)
sketch9.addGeometry(Part.ArcOfCircle(Part.Circle(V(68.3, 14.7, 0), V(0, 0, 1), 3.8), math.radians(-90), math.radians(0)), False)
sketch9.addGeometry(Part.LineSegment(V(72.1, 14.7, 0), V(72.1, 28.1, 0)), False)
sketch9.addGeometry(Part.ArcOfCircle(Part.Circle(V(68.3, 28.1, 0), V(0, 0, 1), 3.8), math.radians(0), math.radians(90)), False)
sketch9.addConstraint(Sketcher.Constraint("Tangent", 0, 2, 1, 1))
sketch9.addConstraint(Sketcher.Constraint("Tangent", 1, 2, 2, 1))
sketch9.addConstraint(Sketcher.Constraint("Tangent", 2, 2, 3, 1))
sketch9.addConstraint(Sketcher.Constraint("Tangent", 3, 2, 4, 1))
sketch9.addConstraint(Sketcher.Constraint("Tangent", 4, 2, 5, 1))
sketch9.addConstraint(Sketcher.Constraint("Tangent", 5, 2, 6, 1))
sketch9.addConstraint(Sketcher.Constraint("Tangent", 6, 2, 7, 1))
sketch9.addConstraint(Sketcher.Constraint("Tangent", 7, 2, 0, 1))
sketch9.addConstraint(Sketcher.Constraint("Horizontal", 0))
sketch9.addConstraint(Sketcher.Constraint("Vertical", 2))
sketch9.addConstraint(Sketcher.Constraint("Horizontal", 4))
sketch9.addConstraint(Sketcher.Constraint("Vertical", 6))
sketch9.addConstraint(Sketcher.Constraint("Equal", 1, 3))
sketch9.addConstraint(Sketcher.Constraint("Equal", 3, 5))
sketch9.addConstraint(Sketcher.Constraint("Equal", 5, 7))
sketch9.addConstraint(Sketcher.Constraint("Radius", 1, Q("0.15 in")))
sketch9.addConstraint(Sketcher.Constraint("DistanceX", 0, 2, 0, 1, Q("0.57 in")))
sketch9.addConstraint(Sketcher.Constraint("DistanceY", 2, 2, 2, 1, Q("0.526 in")))
sketch9.addConstraint(Sketcher.Constraint("DistanceY", -1, 1, 1, 3, Q("1.105 in")))
sketch9.addConstraint(Sketcher.Constraint("DistanceX", -1, 1, 5, 3, Q("2.6875 in")))
pocket6 = body.newObject("PartDesign::Pocket", "Pocket005")
pocket6.Profile = sketch9
pocket6.Length = Q("0.4 in")
pocket6.Reversed = True

# Sketch on XY plane
sketch10 = body.newObject("Sketcher::SketchObject", "Sketch009")
sketch10.AttachmentSupport = (doc.getObject("XY_Plane"), [""])
sketch10.MapMode = "FlatFace"
sketch10.addGeometry(Part.Circle(V(76.2, 32.6, 0), V(0, 0, 1), 2.8), False)
sketch10.addGeometry(Part.Circle(V(76.2, 10.2, 0), V(0, 0, 1), 2.8), False)
sketch10.addGeometry(Part.Circle(V(45.8, 10.2, 0), V(0, 0, 1), 2.8), False)
sketch10.addGeometry(Part.Circle(V(45.8, 32.6, 0), V(0, 0, 1), 2.8), False)
sketch10.addConstraint(Sketcher.Constraint("Equal", 0, 1))
sketch10.addConstraint(Sketcher.Constraint("Equal", 1, 2))
sketch10.addConstraint(Sketcher.Constraint("Equal", 2, 3))
sketch10.addConstraint(Sketcher.Constraint("Horizontal", 1, 3, 2, 3))
sketch10.addConstraint(Sketcher.Constraint("Horizontal", 0, 3, 3, 3))
sketch10.addConstraint(Sketcher.Constraint("Vertical", 0, 3, 1, 3))
sketch10.addConstraint(Sketcher.Constraint("Vertical", 2, 3, 3, 3))
sketch10.addConstraint(Sketcher.Constraint("DistanceX", -1, 1, 0, 3, Q("3 in")))
sketch10.addConstraint(Sketcher.Constraint("DistanceY", -1, 1, 1, 3, Q("0.4 in")))
sketch10.addConstraint(Sketcher.Constraint("Diameter", 0, Q("5.599989 mm")))
sketch10.addConstraint(Sketcher.Constraint("DistanceY", -1, 1, 0, 3, Q("1.284 in")))
sketch10.addConstraint(Sketcher.Constraint("DistanceX", -1, 1, 2, 3, Q("1.805 in")))
pocket7 = body.newObject("PartDesign::Pocket", "Pocket006")
pocket7.Profile = sketch10
pocket7.Length = 5.499989

# Sketch on XY plane
sketch11 = body.newObject("Sketcher::SketchObject", "Sketch010")
sketch11.AttachmentSupport = (doc.getObject("XY_Plane"), [""])
sketch11.MapMode = "FlatFace"
sketch11.AttachmentOffset = App.Placement(V(0, 0, -375.500011), App.Rotation())
sketch11.addGeometry(Part.Circle(V(76.2, 32.6, 0), V(0, 0, 1), 2.8), False)
sketch11.addGeometry(Part.Circle(V(76.2, 10.2, 0), V(0, 0, 1), 2.8), False)
sketch11.addGeometry(Part.Circle(V(45.8, 10.2, 0), V(0, 0, 1), 2.8), False)
sketch11.addGeometry(Part.Circle(V(45.8, 32.6, 0), V(0, 0, 1), 2.8), False)
sketch11.addConstraint(Sketcher.Constraint("Equal", 0, 1))
sketch11.addConstraint(Sketcher.Constraint("Equal", 1, 2))
sketch11.addConstraint(Sketcher.Constraint("Equal", 2, 3))
sketch11.addConstraint(Sketcher.Constraint("Horizontal", 1, 3, 2, 3))
sketch11.addConstraint(Sketcher.Constraint("Horizontal", 0, 3, 3, 3))
sketch11.addConstraint(Sketcher.Constraint("Vertical", 0, 3, 1, 3))
sketch11.addConstraint(Sketcher.Constraint("Vertical", 2, 3, 3, 3))
sketch11.addConstraint(Sketcher.Constraint("DistanceX", -1, 1, 0, 3, Q("3 in")))
sketch11.addConstraint(Sketcher.Constraint("DistanceY", -1, 1, 1, 3, Q("0.4 in")))
sketch11.addConstraint(Sketcher.Constraint("Diameter", 0, Q("5.599989 mm")))
sketch11.addConstraint(Sketcher.Constraint("DistanceY", -1, 1, 0, 3, Q("1.284 in")))
sketch11.addConstraint(Sketcher.Constraint("DistanceX", -1, 1, 2, 3, Q("1.805 in")))
pocket8 = body.newObject("PartDesign::Pocket", "Pocket007")
pocket8.Profile = sketch11
pocket8.Length = 5.499989

# Sketch on XZ plane
sketch12 = body.newObject("Sketcher::SketchObject", "Sketch011")
sketch12.AttachmentSupport = (doc.getObject("XZ_Plane"), [""])
sketch12.MapMode = "FlatFace"
sketch12.AttachmentOffset = App.Placement(V(0, 0, -0.2 * 25.4), App.Rotation())
sketch12.addGeometry(Part.Circle(V(127, -145, 0), V(0, 0, 1), 5), False)
sketch12.addGeometry(Part.Circle(V(193, -145, 0), V(0, 0, 1), 5), False)
sketch12.addGeometry(Part.Circle(V(193, -234, 0), V(0, 0, 1), 5), False)
sketch12.addGeometry(Part.Circle(V(127, -234, 0), V(0, 0, 1), 5), False)
sketch12.addConstraint(Sketcher.Constraint("Equal", 0, 1))
sketch12.addConstraint(Sketcher.Constraint("Equal", 1, 2))
sketch12.addConstraint(Sketcher.Constraint("Equal", 2, 3))
sketch12.addConstraint(Sketcher.Constraint("Horizontal", 0, 3, 1, 3))
sketch12.addConstraint(Sketcher.Constraint("Horizontal", 2, 3, 3, 3))
sketch12.addConstraint(Sketcher.Constraint("Vertical", 1, 3, 2, 3))
sketch12.addConstraint(Sketcher.Constraint("Vertical", 0, 3, 3, 3))
sketch12.addConstraint(Sketcher.Constraint("DistanceX", -1, 1, 1, 3, Q("7.6 in")))
sketch12.addConstraint(Sketcher.Constraint("Diameter", 0, Q("10 mm")))
sketch12.addConstraint(Sketcher.Constraint("DistanceX", -1, 1, 0, 3, Q("127.38 mm")))
sketch12.addConstraint(Sketcher.Constraint("DistanceY", 2, 3, 1, 3, Q("89.03 mm")))
sketch12.addConstraint(Sketcher.Constraint("DistanceY", 0, 3, -1, 1, Q("144.673866 mm")))
pad2 = body.newObject("PartDesign::Pad", "Pad001")
pad2.Profile = sketch12
pad2.Length = Q("0.25 in")
pad2.Reversed = True

# Sketch on XZ plane
sketch13 = body.newObject("Sketcher::SketchObject", "Sketch012")
sketch13.AttachmentSupport = (doc.getObject("XZ_Plane"), [""])
sketch13.MapMode = "FlatFace"
sketch13.AttachmentOffset = App.Placement(V(0, 0, -0.45 * 25.4), App.Rotation())
sketch13.addGeometry(Part.Circle(V(127.4, -233.7, 0), V(0, 0, 1), 2.8), False)
sketch13.addGeometry(Part.Circle(V(193, -233.7, 0), V(0, 0, 1), 2.8), False)
sketch13.addGeometry(Part.Circle(V(193, -144.7, 0), V(0, 0, 1), 2.8), False)
sketch13.addGeometry(Part.Circle(V(127.4, -144.7, 0), V(0, 0, 1), 2.8), False)
sketch13.addConstraint(Sketcher.Constraint("Equal", 0, 1))
sketch13.addConstraint(Sketcher.Constraint("Equal", 1, 2))
sketch13.addConstraint(Sketcher.Constraint("Equal", 2, 3))
sketch13.addConstraint(Sketcher.Constraint("Horizontal", 0, 3, 1, 3))
sketch13.addConstraint(Sketcher.Constraint("Horizontal", 2, 3, 3, 3))
sketch13.addConstraint(Sketcher.Constraint("Vertical", 1, 3, 2, 3))
sketch13.addConstraint(Sketcher.Constraint("Vertical", 0, 3, 3, 3))
sketch13.addConstraint(Sketcher.Constraint("DistanceX", -1, 1, 1, 3, Q("7.6 in")))
sketch13.addConstraint(Sketcher.Constraint("Diameter", 0, Q("5.599989 mm")))
sketch13.addConstraint(Sketcher.Constraint("DistanceX", -1, 1, 0, 3, Q("127.38 mm")))
sketch13.addConstraint(Sketcher.Constraint("DistanceY", 1, 3, 2, 3, Q("89.03 mm")))
sketch13.addConstraint(Sketcher.Constraint("DistanceY", 0, 3, -1, 1, Q("233.703866 mm")))
pocket9 = body.newObject("PartDesign::Pocket", "Pocket008")
pocket9.Profile = sketch13
pocket9.Length = 5.499989
pocket9.Reversed = True

doc.recompute()
